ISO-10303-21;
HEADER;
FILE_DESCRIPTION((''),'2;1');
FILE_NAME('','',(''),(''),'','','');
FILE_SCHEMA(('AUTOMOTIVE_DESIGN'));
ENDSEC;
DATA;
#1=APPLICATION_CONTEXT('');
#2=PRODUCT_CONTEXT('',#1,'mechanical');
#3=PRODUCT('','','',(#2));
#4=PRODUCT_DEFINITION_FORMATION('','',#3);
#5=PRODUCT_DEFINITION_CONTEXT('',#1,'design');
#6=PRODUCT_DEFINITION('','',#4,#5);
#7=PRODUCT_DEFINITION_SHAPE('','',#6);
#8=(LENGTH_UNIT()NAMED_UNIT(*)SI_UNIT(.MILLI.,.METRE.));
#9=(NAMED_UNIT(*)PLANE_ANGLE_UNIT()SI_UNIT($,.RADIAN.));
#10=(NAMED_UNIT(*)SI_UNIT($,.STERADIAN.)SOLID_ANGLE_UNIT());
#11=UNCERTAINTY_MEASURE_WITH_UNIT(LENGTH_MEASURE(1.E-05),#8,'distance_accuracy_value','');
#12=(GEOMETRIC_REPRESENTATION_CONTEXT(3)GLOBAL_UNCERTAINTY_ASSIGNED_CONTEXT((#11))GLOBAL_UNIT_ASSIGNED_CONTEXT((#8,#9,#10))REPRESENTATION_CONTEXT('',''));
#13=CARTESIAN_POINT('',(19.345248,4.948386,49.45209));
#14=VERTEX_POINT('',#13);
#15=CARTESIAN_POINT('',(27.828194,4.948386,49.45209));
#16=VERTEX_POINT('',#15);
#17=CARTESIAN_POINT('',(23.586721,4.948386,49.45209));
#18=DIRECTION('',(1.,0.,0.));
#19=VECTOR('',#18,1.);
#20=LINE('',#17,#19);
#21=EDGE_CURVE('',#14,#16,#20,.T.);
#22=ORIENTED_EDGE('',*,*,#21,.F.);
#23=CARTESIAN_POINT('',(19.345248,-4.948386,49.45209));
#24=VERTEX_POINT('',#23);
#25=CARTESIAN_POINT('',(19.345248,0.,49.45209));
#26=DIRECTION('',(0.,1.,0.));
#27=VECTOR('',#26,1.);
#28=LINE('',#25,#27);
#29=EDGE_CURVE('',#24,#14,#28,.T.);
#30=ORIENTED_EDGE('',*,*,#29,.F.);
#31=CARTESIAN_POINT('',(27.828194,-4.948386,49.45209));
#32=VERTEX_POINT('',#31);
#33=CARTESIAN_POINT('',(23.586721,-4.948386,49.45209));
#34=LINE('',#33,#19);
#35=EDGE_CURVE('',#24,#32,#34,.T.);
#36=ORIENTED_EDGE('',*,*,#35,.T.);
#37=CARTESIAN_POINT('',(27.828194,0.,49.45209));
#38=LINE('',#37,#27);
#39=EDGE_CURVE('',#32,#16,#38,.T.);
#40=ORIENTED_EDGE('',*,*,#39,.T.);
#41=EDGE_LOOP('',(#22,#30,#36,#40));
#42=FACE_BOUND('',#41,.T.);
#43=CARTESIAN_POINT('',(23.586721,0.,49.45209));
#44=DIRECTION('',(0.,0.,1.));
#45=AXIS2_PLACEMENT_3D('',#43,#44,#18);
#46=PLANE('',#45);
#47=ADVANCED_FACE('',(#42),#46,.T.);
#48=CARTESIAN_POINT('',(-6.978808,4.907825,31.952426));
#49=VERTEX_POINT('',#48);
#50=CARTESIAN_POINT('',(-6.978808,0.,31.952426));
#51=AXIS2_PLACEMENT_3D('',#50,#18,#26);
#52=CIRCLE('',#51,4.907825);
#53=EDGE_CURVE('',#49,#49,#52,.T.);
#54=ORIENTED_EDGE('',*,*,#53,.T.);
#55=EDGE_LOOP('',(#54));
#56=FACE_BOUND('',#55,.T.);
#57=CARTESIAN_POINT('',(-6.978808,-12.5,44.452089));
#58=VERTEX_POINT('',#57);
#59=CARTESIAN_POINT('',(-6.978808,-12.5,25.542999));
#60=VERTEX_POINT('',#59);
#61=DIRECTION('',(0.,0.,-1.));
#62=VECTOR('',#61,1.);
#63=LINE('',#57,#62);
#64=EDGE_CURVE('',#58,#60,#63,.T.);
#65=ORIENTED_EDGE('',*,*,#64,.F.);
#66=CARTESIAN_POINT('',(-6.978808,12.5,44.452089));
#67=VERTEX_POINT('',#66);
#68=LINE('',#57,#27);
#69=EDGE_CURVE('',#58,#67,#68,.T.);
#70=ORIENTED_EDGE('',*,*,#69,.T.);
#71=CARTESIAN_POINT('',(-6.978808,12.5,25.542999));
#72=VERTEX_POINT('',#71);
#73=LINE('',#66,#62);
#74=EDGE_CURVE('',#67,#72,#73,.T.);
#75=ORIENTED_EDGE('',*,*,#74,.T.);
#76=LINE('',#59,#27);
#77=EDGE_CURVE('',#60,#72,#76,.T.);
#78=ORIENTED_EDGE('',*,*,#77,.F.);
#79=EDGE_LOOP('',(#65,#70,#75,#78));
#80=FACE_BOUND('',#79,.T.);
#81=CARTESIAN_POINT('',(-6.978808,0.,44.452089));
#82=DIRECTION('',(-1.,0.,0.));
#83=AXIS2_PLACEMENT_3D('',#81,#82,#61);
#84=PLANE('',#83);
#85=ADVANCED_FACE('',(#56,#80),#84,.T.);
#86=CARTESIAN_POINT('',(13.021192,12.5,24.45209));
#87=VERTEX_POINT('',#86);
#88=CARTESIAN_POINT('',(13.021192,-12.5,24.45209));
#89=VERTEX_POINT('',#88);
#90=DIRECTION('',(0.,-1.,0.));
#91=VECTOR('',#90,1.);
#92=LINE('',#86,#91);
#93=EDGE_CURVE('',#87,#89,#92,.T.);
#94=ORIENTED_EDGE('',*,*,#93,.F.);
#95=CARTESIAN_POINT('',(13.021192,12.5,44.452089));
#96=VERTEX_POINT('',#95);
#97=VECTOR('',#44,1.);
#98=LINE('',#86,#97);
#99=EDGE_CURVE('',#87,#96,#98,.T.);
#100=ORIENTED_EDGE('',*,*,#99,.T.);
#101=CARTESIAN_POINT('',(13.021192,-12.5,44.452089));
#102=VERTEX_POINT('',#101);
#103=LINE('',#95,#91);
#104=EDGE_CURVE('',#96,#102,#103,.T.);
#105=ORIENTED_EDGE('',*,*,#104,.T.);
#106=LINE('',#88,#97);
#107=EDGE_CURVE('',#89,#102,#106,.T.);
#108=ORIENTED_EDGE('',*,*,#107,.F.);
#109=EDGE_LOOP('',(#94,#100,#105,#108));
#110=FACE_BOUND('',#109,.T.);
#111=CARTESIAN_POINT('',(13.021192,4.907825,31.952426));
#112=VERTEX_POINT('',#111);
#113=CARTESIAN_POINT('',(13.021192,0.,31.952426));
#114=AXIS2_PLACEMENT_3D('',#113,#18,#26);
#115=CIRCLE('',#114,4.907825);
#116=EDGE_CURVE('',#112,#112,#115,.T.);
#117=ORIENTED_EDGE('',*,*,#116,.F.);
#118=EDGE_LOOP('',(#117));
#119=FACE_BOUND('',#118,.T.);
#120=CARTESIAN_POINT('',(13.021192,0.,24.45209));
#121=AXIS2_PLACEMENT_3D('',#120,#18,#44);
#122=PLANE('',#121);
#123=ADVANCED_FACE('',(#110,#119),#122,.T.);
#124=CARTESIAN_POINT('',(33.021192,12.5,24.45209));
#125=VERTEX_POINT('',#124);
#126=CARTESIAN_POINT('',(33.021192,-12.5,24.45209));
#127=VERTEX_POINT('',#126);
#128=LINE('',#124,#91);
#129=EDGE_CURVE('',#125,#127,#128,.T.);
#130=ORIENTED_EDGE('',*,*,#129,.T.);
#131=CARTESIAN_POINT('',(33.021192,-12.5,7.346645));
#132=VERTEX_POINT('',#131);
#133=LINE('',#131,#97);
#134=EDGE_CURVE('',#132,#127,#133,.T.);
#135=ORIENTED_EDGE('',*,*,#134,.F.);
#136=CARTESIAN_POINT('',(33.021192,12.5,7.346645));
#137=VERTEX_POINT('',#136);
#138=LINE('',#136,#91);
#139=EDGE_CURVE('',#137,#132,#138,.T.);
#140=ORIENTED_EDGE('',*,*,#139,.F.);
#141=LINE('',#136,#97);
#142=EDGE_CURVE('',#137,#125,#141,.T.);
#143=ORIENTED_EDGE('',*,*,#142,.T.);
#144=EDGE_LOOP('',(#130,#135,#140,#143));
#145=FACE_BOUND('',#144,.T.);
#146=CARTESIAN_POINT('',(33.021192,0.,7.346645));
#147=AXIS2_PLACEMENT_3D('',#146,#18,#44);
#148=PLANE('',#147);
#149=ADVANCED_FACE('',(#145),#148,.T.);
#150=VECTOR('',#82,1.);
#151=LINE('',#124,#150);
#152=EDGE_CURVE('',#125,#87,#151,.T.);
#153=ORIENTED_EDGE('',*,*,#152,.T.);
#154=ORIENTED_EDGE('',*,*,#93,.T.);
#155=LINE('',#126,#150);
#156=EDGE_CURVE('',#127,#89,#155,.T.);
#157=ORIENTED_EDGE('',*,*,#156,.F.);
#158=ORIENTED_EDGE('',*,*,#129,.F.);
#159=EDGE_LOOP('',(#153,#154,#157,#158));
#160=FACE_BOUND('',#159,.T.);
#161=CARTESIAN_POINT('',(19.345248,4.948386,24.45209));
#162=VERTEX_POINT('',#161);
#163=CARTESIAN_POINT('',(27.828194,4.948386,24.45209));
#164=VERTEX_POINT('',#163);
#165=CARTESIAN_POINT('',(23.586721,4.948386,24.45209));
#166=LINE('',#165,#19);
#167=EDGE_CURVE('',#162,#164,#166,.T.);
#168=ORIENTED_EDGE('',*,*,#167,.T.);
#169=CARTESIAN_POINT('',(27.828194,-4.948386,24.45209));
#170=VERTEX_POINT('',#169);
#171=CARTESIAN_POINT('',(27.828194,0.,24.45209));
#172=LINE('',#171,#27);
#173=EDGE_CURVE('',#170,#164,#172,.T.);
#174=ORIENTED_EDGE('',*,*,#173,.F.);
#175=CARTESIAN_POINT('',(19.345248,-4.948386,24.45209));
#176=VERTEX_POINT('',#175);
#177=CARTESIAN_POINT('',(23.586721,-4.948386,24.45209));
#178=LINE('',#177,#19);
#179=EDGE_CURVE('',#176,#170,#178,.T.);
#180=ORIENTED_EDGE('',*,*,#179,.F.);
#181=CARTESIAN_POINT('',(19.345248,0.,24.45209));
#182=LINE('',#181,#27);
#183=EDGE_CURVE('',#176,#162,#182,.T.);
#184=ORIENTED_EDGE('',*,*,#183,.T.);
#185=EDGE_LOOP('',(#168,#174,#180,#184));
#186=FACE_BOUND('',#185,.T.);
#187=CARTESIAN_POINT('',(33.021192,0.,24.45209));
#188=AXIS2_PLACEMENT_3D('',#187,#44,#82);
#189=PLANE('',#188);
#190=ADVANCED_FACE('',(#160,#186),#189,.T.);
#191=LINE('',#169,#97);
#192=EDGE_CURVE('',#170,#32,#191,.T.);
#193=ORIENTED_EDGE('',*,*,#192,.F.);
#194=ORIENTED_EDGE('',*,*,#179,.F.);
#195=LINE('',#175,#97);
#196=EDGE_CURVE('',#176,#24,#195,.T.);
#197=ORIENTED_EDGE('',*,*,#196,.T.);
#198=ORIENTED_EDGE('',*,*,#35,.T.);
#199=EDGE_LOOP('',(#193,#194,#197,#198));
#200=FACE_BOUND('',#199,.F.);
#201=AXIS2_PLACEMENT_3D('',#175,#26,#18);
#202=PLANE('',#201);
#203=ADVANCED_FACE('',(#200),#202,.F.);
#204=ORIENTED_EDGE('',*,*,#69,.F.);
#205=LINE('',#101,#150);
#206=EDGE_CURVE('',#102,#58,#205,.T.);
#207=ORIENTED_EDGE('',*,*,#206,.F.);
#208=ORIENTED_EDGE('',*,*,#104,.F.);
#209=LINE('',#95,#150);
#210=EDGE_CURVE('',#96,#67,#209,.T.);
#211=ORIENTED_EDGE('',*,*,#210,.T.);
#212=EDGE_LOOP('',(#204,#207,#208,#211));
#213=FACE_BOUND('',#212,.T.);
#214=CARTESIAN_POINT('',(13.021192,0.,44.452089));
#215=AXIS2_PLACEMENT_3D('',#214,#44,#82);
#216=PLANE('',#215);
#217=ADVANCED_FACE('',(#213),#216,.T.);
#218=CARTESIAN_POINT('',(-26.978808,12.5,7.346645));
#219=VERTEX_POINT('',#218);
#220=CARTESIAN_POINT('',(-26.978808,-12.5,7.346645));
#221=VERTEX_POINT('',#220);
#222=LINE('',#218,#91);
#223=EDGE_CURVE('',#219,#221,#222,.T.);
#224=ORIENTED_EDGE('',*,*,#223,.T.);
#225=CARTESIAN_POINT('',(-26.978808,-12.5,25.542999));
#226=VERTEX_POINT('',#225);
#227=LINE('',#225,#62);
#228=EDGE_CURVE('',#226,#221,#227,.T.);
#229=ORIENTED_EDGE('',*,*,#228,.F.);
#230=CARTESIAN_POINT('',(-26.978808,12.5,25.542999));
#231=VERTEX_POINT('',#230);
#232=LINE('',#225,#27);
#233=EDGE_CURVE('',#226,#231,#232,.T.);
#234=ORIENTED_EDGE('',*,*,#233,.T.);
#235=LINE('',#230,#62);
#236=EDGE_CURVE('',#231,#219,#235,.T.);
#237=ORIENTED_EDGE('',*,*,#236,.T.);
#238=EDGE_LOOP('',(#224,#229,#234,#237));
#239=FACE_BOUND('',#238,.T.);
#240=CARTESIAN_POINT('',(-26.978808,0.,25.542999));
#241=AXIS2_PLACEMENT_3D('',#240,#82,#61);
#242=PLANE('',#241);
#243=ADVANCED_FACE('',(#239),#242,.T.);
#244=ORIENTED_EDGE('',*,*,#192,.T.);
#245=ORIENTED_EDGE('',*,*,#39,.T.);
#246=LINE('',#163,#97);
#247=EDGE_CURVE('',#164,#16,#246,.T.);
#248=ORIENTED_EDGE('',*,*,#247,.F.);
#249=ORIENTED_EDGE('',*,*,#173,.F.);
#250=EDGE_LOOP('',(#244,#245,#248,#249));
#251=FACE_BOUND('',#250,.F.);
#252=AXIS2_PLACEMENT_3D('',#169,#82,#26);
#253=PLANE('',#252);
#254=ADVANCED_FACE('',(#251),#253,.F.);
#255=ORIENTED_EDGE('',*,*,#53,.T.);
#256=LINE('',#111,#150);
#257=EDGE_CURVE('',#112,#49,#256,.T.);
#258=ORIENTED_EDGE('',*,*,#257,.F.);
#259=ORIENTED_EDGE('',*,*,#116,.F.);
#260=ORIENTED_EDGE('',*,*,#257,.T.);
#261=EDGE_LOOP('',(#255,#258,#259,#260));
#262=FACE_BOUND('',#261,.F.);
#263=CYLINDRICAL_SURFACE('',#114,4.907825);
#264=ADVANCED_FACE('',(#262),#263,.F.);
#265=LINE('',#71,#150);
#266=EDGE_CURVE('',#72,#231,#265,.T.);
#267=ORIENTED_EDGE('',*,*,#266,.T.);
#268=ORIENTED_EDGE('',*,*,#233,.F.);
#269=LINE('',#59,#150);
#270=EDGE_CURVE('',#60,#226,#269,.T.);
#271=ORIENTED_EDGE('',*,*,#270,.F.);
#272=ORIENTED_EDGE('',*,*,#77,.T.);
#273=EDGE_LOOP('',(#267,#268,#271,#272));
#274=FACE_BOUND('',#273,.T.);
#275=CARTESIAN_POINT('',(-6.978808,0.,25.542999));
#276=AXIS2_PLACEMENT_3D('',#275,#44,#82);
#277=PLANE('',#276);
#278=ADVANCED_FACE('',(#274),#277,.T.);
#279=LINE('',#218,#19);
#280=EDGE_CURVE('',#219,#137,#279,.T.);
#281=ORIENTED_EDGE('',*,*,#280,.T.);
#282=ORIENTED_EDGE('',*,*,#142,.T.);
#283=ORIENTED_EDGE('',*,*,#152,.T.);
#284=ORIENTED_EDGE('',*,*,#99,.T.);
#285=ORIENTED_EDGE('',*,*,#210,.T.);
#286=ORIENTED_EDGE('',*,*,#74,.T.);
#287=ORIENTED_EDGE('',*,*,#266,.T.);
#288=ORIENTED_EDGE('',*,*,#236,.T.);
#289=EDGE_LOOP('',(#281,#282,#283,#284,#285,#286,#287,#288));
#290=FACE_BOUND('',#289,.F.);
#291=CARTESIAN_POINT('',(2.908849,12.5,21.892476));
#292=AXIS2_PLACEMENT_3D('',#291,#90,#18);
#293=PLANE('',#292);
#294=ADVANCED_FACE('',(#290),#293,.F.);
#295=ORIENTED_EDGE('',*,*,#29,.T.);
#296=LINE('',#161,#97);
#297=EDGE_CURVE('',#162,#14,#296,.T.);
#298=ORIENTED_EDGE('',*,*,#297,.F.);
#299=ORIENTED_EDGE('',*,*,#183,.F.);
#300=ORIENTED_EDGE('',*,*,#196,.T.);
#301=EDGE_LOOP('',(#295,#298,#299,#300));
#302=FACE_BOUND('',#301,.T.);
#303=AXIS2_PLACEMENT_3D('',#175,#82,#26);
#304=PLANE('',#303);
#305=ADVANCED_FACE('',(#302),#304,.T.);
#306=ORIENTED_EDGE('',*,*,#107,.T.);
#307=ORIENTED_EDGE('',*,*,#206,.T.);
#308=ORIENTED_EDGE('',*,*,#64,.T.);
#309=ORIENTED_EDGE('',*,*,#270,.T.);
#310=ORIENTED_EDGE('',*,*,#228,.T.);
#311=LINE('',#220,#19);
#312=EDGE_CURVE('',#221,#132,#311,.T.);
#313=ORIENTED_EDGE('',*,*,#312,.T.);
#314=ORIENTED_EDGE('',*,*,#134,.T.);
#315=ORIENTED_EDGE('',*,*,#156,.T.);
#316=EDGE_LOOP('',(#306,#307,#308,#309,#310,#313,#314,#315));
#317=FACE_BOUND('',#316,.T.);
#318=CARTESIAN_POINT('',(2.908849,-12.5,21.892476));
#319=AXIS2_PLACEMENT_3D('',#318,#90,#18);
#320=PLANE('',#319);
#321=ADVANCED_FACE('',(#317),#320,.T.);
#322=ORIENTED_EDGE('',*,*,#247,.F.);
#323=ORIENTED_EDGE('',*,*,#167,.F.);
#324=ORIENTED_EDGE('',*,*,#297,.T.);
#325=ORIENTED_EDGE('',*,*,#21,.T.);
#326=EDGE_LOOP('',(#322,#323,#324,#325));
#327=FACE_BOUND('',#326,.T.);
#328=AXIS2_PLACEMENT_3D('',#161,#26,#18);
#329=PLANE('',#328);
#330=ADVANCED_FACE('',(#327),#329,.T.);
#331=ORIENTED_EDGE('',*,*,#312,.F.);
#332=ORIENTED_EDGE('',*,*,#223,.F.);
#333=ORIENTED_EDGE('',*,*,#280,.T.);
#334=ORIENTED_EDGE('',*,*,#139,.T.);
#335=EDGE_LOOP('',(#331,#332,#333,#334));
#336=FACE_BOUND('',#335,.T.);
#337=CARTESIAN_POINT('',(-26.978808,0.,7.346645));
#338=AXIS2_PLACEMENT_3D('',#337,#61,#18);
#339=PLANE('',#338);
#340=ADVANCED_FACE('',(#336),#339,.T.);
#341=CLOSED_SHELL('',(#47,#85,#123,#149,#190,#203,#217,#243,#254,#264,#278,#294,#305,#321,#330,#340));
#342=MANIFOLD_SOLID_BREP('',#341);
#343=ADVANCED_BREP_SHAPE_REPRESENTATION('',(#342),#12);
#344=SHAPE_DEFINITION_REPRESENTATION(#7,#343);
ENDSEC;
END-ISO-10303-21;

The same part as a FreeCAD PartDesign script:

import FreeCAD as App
import Part
import Sketcher
from FreeCAD import Vector
Q = App.Units.Quantity

doc = App.newDocument("Part")
body = doc.addObject("PartDesign::Body", "Body")

sketch1 = doc.addObject("Sketcher::SketchObject", "Sketch")
body.addObject(sketch1)
sketch1.AttachmentSupport = (doc.XZ_Plane, [""])
sketch1.MapMode = "FlatFace"
sketch1.addGeometry([
    Part.LineSegment(Vector(-27, 26, 0), Vector(-27, 7, 0)),
    Part.LineSegment(Vector(-27, 7, 0), Vector(33, 7, 0)),
    Part.LineSegment(Vector(33, 7, 0), Vector(33, 24, 0)),
    Part.LineSegment(Vector(33, 24, 0), Vector(13, 24, 0)),
    Part.LineSegment(Vector(13, 24, 0), Vector(13, 44, 0)),
    Part.LineSegment(Vector(13, 44, 0), Vector(-7, 44, 0)),
    Part.LineSegment(Vector(-7, 44, 0), Vector(-7, 26, 0)),
    Part.LineSegment(Vector(-7, 26, 0), Vector(-27, 26, 0)),
], False)
sketch1.addConstraint([
    Sketcher.Constraint("Coincident", 0, 2, 1, 1),
    Sketcher.Constraint("Coincident", 1, 2, 2, 1),
    Sketcher.Constraint("Coincident", 2, 2, 3, 1),
    Sketcher.Constraint("Coincident", 3, 2, 4, 1),
    Sketcher.Constraint("Coincident", 4, 2, 5, 1),
    Sketcher.Constraint("Coincident", 5, 2, 6, 1),
    Sketcher.Constraint("Coincident", 6, 2, 7, 1),
    Sketcher.Constraint("Coincident", 7, 2, 0, 1),
    Sketcher.Constraint("Vertical", 0),
    Sketcher.Constraint("Horizontal", 1),
    Sketcher.Constraint("Vertical", 2),
    Sketcher.Constraint("Horizontal", 3),
    Sketcher.Constraint("Vertical", 4),
    Sketcher.Constraint("Horizontal", 5),
    Sketcher.Constraint("Vertical", 6),
    Sketcher.Constraint("Horizontal", 7),
    Sketcher.Constraint("Equal", 3, 5),
    Sketcher.Constraint("Equal", 5, 7),
    Sketcher.Constraint("Equal", 7, 4),
    Sketcher.Constraint("DistanceX", 1, 1, 1, 2, Q("60 mm")),
    Sketcher.Constraint("DistanceY", -1, 1, 6, 2, Q("25.542999 mm")),
    Sketcher.Constraint("DistanceY", 6, 2, 6, 1, Q("18.90909 mm")),
    Sketcher.Constraint("DistanceY", 0, 2, 0, 1, Q("18.196354 mm")),
    Sketcher.Constraint("DistanceX", 0, 2, -1, 1, Q("26.978808 mm")),
])
pad1 = doc.addObject("PartDesign::Pad", "Pad")
body.addObject(pad1)
pad1.Profile = sketch1
pad1.Length = 25
pad1.Midplane = True

sketch2 = doc.addObject("Sketcher::SketchObject", "Sketch001")
body.addObject(sketch2)
sketch2.AttachmentSupport = (doc.YZ_Plane, [""])
sketch2.MapMode = "FlatFace"
sketch2.AttachmentOffset = App.Placement(Vector(0, 0, 13.021192), App.Rotation())
sketch2.addGeometry(Part.Circle(Vector(0, 32, 0), Vector(0, 0, 1), 4.9), False)
sketch2.addConstraint([
    Sketcher.Constraint("PointOnObject", 0, 3, -2),
    Sketcher.Constraint("Diameter", 0, Q("9.81565 mm")),
    Sketcher.Constraint("DistanceY", -1, 1, 0, 3, Q("31.952426 mm")),
])
pocket1 = doc.addObject("PartDesign::Pocket", "Pocket")
body.addObject(pocket1)
pocket1.Profile = sketch2
pocket1.Type = "ThroughAll"

sketch3 = doc.addObject("Sketcher::SketchObject", "Sketch002")
body.addObject(sketch3)
sketch3.AttachmentSupport = (doc.XY_Plane, [""])
sketch3.MapMode = "FlatFace"
sketch3.AttachmentOffset = App.Placement(Vector(0, 0, 24.45209), App.Rotation())
sketch3.addGeometry([
    Part.LineSegment(Vector(19, 5, 0), Vector(19, -5, 0)),
    Part.LineSegment(Vector(19, -5, 0), Vector(28, -5, 0)),
    Part.LineSegment(Vector(28, -5, 0), Vector(28, 5, 0)),
    Part.LineSegment(Vector(28, 5, 0), Vector(19, 5, 0)),
], False)
sketch3.addConstraint([
    Sketcher.Constraint("Coincident", 0, 2, 1, 1),
    Sketcher.Constraint("Coincident", 1, 2, 2, 1),
    Sketcher.Constraint("Coincident", 2, 2, 3, 1),
    Sketcher.Constraint("Coincident", 3, 2, 0, 1),
    Sketcher.Constraint("Vertical", 0),
    Sketcher.Constraint("Horizontal", 1),
    Sketcher.Constraint("Vertical", 2),
    Sketcher.Constraint("Horizontal", 3),
    Sketcher.Constraint("DistanceX", 1, 1, 1, 2, Q("8.482946 mm")),
    Sketcher.Constraint("DistanceY", 0, 2, 0, 1, Q("9.896773 mm")),
    Sketcher.Constraint("DistanceX", -1, 1, 0, 2, Q("19.345248 mm")),
    Sketcher.Constraint("DistanceY", 0, 2, -1, 1, Q("4.948386 mm")),
])
pad2 = doc.addObject("PartDesign::Pad", "Pad001")
body.addObject(pad2)
pad2.Profile = sketch3
pad2.Length = 25

doc.recompute()
